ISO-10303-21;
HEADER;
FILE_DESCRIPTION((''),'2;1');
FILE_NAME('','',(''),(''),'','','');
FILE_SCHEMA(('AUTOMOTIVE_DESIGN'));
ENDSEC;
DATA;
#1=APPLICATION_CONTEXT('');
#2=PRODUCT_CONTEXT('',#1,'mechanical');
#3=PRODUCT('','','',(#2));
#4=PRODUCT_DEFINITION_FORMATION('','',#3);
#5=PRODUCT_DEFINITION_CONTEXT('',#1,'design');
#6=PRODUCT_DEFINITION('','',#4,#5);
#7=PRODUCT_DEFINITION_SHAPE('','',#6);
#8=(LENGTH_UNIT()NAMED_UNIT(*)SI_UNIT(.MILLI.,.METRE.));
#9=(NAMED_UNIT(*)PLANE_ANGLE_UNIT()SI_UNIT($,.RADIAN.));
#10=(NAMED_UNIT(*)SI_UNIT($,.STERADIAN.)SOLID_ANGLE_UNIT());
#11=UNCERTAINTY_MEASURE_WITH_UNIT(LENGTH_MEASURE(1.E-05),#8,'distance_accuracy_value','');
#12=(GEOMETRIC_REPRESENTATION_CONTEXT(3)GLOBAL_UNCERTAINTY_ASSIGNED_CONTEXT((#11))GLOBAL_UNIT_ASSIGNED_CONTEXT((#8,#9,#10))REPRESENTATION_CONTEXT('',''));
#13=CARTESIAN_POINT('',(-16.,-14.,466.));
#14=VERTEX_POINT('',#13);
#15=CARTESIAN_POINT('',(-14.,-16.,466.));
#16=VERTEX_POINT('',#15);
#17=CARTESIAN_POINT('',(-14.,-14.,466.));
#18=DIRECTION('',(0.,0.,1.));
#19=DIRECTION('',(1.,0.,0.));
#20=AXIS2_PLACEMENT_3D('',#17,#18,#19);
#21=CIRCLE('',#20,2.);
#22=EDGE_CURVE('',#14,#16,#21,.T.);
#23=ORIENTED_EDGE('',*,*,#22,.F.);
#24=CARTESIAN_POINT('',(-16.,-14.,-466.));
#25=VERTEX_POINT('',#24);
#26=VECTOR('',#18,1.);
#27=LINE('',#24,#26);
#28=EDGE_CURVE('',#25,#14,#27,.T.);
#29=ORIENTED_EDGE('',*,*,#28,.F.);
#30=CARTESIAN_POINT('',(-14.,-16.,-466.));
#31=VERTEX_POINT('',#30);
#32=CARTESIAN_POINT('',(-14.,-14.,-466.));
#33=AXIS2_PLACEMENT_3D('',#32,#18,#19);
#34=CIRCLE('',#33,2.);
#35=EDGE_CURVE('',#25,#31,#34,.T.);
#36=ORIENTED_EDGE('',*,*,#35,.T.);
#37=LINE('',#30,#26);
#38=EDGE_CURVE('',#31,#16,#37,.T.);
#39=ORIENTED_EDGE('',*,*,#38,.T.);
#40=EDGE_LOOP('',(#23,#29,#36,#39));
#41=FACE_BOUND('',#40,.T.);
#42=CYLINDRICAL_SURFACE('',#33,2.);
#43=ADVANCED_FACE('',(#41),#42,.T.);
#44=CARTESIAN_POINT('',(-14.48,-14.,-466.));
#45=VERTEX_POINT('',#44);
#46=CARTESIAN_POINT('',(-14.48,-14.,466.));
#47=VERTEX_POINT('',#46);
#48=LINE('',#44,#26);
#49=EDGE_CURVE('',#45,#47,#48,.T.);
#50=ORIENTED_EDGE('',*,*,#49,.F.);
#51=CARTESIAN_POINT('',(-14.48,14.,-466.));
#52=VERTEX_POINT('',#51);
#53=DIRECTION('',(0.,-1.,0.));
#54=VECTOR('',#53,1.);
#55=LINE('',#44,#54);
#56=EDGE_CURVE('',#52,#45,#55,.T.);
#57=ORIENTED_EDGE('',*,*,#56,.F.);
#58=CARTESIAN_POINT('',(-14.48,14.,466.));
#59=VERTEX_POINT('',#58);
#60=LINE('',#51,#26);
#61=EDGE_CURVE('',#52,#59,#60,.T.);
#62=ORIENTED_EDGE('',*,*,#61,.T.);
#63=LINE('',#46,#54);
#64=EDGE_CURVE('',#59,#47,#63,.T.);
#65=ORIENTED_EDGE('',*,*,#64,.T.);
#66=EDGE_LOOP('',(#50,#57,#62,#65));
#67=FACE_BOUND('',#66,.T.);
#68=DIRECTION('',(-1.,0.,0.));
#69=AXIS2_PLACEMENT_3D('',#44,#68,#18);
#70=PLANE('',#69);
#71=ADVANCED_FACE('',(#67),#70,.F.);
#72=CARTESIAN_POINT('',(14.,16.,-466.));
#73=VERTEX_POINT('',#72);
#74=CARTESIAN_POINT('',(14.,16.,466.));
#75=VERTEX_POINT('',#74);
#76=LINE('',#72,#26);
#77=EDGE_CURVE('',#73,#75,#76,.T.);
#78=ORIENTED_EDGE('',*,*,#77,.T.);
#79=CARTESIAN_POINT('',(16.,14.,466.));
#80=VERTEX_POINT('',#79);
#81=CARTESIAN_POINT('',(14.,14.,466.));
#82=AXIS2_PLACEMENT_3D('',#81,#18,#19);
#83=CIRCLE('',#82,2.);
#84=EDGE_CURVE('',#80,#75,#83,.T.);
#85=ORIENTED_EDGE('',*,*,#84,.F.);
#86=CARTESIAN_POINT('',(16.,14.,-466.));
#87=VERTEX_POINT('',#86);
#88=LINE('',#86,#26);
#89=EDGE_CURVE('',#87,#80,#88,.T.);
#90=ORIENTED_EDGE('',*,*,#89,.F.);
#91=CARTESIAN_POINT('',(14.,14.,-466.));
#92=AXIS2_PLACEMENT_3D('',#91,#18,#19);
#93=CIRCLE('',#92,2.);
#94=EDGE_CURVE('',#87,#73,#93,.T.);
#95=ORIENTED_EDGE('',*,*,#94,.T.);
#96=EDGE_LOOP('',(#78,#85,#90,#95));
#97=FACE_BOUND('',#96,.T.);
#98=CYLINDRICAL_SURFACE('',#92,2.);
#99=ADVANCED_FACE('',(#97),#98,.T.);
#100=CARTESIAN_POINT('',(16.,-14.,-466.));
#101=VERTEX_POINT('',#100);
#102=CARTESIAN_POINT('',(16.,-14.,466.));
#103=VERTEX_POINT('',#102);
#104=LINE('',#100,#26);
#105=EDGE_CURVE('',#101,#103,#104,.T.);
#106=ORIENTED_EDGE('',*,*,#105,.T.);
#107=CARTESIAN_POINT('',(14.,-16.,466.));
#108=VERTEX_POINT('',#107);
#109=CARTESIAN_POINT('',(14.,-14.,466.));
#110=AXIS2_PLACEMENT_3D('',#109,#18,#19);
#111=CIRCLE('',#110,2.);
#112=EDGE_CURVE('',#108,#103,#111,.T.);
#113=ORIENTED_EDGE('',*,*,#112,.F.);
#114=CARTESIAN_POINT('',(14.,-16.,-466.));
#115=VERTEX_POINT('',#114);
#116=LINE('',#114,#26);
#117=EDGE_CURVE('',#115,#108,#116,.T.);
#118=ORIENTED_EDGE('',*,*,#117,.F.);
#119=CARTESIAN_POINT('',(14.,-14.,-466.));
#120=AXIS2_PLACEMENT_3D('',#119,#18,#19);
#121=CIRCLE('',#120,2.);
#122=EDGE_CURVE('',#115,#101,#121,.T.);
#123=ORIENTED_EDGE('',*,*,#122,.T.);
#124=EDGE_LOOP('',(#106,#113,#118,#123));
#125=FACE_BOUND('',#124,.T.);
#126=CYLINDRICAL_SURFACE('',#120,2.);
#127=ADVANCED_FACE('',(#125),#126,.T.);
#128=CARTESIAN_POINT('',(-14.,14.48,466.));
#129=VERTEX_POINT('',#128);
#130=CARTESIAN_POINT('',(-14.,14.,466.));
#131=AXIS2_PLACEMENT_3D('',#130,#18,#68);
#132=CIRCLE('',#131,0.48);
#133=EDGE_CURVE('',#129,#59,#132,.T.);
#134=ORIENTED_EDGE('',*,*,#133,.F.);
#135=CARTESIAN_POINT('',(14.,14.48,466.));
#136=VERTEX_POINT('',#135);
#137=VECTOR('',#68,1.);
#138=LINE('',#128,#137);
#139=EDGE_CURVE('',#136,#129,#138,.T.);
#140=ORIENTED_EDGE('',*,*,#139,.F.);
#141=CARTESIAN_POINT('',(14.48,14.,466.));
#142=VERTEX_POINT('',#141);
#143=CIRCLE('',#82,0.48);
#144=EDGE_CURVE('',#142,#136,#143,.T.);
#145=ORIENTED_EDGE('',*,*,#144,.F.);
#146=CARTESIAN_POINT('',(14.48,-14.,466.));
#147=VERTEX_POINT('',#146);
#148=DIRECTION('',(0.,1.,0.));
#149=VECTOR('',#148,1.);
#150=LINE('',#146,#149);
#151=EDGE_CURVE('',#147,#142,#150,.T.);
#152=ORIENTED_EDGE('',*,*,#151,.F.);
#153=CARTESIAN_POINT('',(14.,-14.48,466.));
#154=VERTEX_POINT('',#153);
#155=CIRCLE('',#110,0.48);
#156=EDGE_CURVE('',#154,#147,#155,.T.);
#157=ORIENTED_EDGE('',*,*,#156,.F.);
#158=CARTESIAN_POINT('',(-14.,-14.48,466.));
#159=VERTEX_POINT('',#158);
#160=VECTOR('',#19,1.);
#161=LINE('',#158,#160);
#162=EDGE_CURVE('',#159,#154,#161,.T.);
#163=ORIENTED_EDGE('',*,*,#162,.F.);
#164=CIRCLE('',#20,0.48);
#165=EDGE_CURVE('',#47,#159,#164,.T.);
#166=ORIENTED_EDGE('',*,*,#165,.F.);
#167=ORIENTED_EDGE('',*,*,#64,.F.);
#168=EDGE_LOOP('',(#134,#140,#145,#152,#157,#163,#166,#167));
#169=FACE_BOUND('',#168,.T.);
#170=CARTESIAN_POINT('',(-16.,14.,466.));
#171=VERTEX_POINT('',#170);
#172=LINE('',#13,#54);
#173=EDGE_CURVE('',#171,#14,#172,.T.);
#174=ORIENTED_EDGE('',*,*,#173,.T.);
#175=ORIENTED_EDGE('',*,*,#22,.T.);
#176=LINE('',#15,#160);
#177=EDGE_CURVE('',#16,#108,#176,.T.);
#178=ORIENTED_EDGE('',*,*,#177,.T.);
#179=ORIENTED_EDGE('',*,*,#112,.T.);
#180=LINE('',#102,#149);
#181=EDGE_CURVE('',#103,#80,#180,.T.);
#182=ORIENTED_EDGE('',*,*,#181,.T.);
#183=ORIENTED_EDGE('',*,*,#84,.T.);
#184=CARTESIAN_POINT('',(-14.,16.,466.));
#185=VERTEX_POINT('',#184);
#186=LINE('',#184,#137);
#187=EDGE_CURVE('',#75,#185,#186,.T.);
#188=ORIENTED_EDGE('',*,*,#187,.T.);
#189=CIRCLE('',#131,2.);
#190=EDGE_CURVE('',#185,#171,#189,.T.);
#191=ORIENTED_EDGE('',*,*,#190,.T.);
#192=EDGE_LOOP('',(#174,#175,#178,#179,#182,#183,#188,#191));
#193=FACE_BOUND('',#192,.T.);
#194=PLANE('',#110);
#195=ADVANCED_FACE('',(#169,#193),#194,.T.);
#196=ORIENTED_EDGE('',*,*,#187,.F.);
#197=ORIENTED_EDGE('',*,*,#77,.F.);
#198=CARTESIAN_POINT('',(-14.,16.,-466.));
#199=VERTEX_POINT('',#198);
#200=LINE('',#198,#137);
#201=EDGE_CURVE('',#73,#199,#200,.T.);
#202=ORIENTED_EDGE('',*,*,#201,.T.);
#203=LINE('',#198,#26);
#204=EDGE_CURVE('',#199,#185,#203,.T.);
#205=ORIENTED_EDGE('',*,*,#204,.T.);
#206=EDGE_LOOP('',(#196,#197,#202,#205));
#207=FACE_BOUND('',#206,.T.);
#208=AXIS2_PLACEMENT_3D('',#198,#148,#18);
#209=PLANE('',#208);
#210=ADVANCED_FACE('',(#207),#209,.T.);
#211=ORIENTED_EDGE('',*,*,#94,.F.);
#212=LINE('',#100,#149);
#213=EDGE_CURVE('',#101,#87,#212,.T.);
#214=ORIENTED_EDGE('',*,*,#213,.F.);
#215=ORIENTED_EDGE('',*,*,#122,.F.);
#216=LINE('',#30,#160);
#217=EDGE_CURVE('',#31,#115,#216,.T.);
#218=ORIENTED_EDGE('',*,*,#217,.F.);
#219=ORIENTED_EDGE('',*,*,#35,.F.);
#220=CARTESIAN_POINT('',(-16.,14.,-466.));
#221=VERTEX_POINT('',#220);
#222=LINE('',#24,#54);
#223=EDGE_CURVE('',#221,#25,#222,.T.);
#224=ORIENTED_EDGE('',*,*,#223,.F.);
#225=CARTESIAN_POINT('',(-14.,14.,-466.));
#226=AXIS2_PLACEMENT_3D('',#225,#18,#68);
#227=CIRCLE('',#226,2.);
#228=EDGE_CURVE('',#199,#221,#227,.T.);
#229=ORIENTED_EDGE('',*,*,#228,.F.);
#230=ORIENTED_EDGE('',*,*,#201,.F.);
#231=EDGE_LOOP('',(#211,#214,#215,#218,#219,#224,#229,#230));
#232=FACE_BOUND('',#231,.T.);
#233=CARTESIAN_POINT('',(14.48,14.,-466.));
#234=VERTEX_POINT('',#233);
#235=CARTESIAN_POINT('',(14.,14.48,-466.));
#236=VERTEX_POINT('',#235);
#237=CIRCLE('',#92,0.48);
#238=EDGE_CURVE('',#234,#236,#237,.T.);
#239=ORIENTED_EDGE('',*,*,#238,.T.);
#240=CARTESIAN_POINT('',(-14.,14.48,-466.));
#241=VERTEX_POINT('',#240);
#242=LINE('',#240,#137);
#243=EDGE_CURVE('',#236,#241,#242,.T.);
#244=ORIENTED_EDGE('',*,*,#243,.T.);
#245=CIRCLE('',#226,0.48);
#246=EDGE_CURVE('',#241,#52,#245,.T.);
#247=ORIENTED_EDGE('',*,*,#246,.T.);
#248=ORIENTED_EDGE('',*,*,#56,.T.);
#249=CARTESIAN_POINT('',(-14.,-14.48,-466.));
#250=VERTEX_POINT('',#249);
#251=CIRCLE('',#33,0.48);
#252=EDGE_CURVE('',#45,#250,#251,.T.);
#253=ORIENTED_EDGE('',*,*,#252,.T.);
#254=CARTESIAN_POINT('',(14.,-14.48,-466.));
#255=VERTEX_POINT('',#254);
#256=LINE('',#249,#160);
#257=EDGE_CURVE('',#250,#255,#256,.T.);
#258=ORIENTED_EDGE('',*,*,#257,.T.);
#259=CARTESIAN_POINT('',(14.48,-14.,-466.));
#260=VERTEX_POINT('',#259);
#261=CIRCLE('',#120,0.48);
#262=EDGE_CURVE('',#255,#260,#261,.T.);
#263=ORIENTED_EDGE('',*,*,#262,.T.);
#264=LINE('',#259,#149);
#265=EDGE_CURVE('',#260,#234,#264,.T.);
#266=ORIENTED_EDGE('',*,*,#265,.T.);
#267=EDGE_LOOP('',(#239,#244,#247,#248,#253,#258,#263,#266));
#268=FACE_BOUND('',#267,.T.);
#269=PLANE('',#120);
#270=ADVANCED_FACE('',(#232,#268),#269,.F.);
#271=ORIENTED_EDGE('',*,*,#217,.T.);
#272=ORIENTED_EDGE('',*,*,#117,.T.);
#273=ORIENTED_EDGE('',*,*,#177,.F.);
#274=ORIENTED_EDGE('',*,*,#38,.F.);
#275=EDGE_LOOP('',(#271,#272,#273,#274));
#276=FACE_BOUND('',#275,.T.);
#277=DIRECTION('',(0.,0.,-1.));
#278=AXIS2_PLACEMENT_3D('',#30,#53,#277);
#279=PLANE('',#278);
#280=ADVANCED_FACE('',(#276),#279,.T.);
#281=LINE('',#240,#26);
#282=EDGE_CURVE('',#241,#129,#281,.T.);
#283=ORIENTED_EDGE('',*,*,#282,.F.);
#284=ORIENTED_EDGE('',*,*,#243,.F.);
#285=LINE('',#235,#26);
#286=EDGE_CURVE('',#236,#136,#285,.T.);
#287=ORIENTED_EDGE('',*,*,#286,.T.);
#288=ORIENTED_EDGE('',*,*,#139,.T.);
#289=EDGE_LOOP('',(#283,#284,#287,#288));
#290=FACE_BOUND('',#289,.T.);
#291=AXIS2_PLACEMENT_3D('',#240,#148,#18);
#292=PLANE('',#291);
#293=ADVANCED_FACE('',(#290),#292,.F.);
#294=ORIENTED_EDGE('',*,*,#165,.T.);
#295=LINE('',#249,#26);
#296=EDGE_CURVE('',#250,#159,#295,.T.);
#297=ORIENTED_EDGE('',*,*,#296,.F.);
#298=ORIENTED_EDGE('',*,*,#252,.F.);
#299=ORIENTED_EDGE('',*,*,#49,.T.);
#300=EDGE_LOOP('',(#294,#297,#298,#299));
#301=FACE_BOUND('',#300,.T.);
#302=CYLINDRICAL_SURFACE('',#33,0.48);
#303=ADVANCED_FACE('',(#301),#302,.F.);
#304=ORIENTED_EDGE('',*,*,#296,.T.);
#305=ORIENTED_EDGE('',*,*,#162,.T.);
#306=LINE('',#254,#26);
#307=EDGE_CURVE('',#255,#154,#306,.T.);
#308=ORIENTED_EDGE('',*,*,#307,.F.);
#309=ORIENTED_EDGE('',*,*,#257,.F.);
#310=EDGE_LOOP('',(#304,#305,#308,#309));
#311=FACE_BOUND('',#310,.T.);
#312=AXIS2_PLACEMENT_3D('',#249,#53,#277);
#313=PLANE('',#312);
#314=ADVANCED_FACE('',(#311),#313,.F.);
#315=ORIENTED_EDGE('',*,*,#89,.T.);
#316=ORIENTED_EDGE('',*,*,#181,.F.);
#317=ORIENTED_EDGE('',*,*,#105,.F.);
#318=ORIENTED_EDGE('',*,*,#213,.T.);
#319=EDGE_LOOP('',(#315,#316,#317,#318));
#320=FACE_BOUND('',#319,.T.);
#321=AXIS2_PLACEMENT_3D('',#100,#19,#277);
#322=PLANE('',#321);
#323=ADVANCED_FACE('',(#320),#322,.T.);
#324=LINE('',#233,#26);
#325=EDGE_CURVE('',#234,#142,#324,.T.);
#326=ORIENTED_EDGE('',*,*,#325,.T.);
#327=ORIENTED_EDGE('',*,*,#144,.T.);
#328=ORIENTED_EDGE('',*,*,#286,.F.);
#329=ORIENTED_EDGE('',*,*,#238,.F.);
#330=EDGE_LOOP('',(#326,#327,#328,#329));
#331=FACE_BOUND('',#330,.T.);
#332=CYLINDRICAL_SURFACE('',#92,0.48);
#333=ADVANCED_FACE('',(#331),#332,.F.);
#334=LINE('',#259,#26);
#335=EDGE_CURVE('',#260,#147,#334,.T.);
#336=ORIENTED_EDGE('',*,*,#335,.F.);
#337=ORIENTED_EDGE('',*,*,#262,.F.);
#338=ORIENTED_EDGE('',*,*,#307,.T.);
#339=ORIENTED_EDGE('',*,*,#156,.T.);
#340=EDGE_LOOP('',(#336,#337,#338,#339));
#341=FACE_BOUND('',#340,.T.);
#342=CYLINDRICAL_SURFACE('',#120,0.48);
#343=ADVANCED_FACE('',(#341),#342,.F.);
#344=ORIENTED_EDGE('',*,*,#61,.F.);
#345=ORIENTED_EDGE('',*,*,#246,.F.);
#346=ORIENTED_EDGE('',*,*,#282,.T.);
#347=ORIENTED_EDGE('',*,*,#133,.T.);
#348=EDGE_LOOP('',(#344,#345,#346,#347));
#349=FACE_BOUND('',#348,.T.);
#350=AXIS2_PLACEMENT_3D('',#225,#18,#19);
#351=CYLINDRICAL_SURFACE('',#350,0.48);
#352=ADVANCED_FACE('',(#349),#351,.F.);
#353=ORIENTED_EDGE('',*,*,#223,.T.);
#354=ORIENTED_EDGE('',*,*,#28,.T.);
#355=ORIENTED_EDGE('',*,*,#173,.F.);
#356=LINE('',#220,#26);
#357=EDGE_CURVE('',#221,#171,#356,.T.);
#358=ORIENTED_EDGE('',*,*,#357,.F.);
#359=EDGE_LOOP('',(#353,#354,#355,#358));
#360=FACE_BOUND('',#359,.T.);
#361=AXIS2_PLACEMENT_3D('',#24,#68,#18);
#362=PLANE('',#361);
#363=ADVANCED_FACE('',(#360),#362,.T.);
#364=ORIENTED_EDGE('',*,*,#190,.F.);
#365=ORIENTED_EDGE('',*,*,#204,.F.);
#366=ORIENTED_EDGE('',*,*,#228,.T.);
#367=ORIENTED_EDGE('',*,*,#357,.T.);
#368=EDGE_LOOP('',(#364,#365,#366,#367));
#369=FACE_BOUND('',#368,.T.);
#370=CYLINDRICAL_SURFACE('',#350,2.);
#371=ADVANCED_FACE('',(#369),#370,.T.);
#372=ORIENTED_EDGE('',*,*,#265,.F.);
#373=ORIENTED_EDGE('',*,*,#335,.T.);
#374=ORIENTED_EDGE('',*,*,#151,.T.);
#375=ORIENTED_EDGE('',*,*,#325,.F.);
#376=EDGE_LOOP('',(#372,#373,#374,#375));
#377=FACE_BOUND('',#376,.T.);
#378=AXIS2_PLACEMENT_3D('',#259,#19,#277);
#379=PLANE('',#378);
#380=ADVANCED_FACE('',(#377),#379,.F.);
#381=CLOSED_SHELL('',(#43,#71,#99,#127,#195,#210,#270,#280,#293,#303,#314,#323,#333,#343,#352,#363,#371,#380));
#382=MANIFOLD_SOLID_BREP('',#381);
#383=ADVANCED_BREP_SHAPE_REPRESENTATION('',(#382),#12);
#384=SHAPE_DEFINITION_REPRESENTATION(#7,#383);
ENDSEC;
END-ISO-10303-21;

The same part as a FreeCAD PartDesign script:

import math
import FreeCAD as App
import Part
import Sketcher
from FreeCAD import Vector
Q = App.Units.Quantity

doc = App.newDocument("Part")
body = doc.addObject("PartDesign::Body", "Body")

sketch1 = body.newObject("Sketcher::SketchObject", "Sketch")
sketch1.AttachmentSupport = (doc.getObject("XY_Plane"), [""])
sketch1.MapMode = "FlatFace"
sketch1.addGeometry([
    Part.LineSegment(Vector(-14, -16, 0), Vector(14, -16, 0)),
    Part.ArcOfCircle(Part.Circle(Vector(14, -14, 0), Vector(0, 0, 1), 2), math.radians(-90), math.radians(0)),
    Part.LineSegment(Vector(16, -14, 0), Vector(16, 14, 0)),
    Part.ArcOfCircle(Part.Circle(Vector(14, 14, 0), Vector(0, 0, 1), 2), math.radians(0), math.radians(90)),
    Part.LineSegment(Vector(14, 16, 0), Vector(-14, 16, 0)),
    Part.ArcOfCircle(Part.Circle(Vector(-14, 14, 0), Vector(0, 0, 1), 2), math.radians(90), math.radians(180)),
    Part.LineSegment(Vector(-16, 14, 0), Vector(-16, -14, 0)),
    Part.ArcOfCircle(Part.Circle(Vector(-14, -14, 0), Vector(0, 0, 1), 2), math.radians(-180), math.radians(-90)),
    Part.ArcOfCircle(Part.Circle(Vector(-14, 14, 0), Vector(0, 0, 1), 0.48), math.radians(90), math.radians(180)),
    Part.LineSegment(Vector(-14, 14.48, 0), Vector(14, 14.48, 0)),
    Part.ArcOfCircle(Part.Circle(Vector(14, 14, 0), Vector(0, 0, 1), 0.48), math.radians(0), math.radians(90)),
    Part.LineSegment(Vector(14.48, 14, 0), Vector(14.48, -14, 0)),
    Part.ArcOfCircle(Part.Circle(Vector(14, -14, 0), Vector(0, 0, 1), 0.48), math.radians(-90), math.radians(0)),
    Part.LineSegment(Vector(14, -14.48, 0), Vector(-14, -14.48, 0)),
    Part.ArcOfCircle(Part.Circle(Vector(-14, -14, 0), Vector(0, 0, 1), 0.48), math.radians(180), math.radians(270)),
    Part.LineSegment(Vector(-14.48, -14, 0), Vector(-14.48, 14, 0)),
], False)
sketch1.addConstraint([
    Sketcher.Constraint("Tangent", 0, 2, 1, 1),
    Sketcher.Constraint("Tangent", 1, 2, 2, 1),
    Sketcher.Constraint("Tangent", 2, 2, 3, 1),
    Sketcher.Constraint("Tangent", 3, 2, 4, 1),
    Sketcher.Constraint("Tangent", 4, 2, 5, 1),
    Sketcher.Constraint("Tangent", 5, 2, 6, 1),
    Sketcher.Constraint("Tangent", 6, 2, 7, 1),
    Sketcher.Constraint("Tangent", 7, 2, 0, 1),
    Sketcher.Constraint("Tangent", 8, 1, 9, 1),
    Sketcher.Constraint("Tangent", 9, 2, 10, 2),
    Sketcher.Constraint("Tangent", 10, 1, 11, 1),
    Sketcher.Constraint("Tangent", 11, 2, 12, 2),
    Sketcher.Constraint("Tangent", 12, 1, 13, 1),
    Sketcher.Constraint("Tangent", 13, 2, 14, 2),
    Sketcher.Constraint("Tangent", 14, 1, 15, 1),
    Sketcher.Constraint("Tangent", 15, 2, 8, 2),
    Sketcher.Constraint("Horizontal", 0),
    Sketcher.Constraint("Vertical", 2),
    Sketcher.Constraint("Horizontal", 4),
    Sketcher.Constraint("Vertical", 6),
    Sketcher.Constraint("Horizontal", 9),
    Sketcher.Constraint("Vertical", 11),
    Sketcher.Constraint("Horizontal", 13),
    Sketcher.Constraint("Vertical", 15),
    Sketcher.Constraint("Coincident", 8, 3, 5, 3),
    Sketcher.Constraint("Coincident", 10, 3, 3, 3),
    Sketcher.Constraint("Coincident", 12, 3, 1, 3),
    Sketcher.Constraint("Equal", 1, 3),
    Sketcher.Constraint("Equal", 3, 5),
    Sketcher.Constraint("Equal", 5, 7),
    Sketcher.Constraint("Equal", 12, 14),
    Sketcher.Constraint("Symmetric", 1, 3, 5, 3, -1, 1),
    Sketcher.Constraint("Equal", 13, 2),
    Sketcher.Constraint("Radius", 1, Q("2 mm")),
    Sketcher.Constraint("DistanceX", 0, 1, 0, 2, Q("28 mm")),
    Sketcher.Constraint("Radius", 8, Q("0.48 mm")),
])
pad1 = body.newObject("PartDesign::Pad", "Pad")
pad1.Profile = sketch1
pad1.Type = "TwoLengths"
pad1.Length = 466
pad1.Length2 = 466

doc.recompute()
